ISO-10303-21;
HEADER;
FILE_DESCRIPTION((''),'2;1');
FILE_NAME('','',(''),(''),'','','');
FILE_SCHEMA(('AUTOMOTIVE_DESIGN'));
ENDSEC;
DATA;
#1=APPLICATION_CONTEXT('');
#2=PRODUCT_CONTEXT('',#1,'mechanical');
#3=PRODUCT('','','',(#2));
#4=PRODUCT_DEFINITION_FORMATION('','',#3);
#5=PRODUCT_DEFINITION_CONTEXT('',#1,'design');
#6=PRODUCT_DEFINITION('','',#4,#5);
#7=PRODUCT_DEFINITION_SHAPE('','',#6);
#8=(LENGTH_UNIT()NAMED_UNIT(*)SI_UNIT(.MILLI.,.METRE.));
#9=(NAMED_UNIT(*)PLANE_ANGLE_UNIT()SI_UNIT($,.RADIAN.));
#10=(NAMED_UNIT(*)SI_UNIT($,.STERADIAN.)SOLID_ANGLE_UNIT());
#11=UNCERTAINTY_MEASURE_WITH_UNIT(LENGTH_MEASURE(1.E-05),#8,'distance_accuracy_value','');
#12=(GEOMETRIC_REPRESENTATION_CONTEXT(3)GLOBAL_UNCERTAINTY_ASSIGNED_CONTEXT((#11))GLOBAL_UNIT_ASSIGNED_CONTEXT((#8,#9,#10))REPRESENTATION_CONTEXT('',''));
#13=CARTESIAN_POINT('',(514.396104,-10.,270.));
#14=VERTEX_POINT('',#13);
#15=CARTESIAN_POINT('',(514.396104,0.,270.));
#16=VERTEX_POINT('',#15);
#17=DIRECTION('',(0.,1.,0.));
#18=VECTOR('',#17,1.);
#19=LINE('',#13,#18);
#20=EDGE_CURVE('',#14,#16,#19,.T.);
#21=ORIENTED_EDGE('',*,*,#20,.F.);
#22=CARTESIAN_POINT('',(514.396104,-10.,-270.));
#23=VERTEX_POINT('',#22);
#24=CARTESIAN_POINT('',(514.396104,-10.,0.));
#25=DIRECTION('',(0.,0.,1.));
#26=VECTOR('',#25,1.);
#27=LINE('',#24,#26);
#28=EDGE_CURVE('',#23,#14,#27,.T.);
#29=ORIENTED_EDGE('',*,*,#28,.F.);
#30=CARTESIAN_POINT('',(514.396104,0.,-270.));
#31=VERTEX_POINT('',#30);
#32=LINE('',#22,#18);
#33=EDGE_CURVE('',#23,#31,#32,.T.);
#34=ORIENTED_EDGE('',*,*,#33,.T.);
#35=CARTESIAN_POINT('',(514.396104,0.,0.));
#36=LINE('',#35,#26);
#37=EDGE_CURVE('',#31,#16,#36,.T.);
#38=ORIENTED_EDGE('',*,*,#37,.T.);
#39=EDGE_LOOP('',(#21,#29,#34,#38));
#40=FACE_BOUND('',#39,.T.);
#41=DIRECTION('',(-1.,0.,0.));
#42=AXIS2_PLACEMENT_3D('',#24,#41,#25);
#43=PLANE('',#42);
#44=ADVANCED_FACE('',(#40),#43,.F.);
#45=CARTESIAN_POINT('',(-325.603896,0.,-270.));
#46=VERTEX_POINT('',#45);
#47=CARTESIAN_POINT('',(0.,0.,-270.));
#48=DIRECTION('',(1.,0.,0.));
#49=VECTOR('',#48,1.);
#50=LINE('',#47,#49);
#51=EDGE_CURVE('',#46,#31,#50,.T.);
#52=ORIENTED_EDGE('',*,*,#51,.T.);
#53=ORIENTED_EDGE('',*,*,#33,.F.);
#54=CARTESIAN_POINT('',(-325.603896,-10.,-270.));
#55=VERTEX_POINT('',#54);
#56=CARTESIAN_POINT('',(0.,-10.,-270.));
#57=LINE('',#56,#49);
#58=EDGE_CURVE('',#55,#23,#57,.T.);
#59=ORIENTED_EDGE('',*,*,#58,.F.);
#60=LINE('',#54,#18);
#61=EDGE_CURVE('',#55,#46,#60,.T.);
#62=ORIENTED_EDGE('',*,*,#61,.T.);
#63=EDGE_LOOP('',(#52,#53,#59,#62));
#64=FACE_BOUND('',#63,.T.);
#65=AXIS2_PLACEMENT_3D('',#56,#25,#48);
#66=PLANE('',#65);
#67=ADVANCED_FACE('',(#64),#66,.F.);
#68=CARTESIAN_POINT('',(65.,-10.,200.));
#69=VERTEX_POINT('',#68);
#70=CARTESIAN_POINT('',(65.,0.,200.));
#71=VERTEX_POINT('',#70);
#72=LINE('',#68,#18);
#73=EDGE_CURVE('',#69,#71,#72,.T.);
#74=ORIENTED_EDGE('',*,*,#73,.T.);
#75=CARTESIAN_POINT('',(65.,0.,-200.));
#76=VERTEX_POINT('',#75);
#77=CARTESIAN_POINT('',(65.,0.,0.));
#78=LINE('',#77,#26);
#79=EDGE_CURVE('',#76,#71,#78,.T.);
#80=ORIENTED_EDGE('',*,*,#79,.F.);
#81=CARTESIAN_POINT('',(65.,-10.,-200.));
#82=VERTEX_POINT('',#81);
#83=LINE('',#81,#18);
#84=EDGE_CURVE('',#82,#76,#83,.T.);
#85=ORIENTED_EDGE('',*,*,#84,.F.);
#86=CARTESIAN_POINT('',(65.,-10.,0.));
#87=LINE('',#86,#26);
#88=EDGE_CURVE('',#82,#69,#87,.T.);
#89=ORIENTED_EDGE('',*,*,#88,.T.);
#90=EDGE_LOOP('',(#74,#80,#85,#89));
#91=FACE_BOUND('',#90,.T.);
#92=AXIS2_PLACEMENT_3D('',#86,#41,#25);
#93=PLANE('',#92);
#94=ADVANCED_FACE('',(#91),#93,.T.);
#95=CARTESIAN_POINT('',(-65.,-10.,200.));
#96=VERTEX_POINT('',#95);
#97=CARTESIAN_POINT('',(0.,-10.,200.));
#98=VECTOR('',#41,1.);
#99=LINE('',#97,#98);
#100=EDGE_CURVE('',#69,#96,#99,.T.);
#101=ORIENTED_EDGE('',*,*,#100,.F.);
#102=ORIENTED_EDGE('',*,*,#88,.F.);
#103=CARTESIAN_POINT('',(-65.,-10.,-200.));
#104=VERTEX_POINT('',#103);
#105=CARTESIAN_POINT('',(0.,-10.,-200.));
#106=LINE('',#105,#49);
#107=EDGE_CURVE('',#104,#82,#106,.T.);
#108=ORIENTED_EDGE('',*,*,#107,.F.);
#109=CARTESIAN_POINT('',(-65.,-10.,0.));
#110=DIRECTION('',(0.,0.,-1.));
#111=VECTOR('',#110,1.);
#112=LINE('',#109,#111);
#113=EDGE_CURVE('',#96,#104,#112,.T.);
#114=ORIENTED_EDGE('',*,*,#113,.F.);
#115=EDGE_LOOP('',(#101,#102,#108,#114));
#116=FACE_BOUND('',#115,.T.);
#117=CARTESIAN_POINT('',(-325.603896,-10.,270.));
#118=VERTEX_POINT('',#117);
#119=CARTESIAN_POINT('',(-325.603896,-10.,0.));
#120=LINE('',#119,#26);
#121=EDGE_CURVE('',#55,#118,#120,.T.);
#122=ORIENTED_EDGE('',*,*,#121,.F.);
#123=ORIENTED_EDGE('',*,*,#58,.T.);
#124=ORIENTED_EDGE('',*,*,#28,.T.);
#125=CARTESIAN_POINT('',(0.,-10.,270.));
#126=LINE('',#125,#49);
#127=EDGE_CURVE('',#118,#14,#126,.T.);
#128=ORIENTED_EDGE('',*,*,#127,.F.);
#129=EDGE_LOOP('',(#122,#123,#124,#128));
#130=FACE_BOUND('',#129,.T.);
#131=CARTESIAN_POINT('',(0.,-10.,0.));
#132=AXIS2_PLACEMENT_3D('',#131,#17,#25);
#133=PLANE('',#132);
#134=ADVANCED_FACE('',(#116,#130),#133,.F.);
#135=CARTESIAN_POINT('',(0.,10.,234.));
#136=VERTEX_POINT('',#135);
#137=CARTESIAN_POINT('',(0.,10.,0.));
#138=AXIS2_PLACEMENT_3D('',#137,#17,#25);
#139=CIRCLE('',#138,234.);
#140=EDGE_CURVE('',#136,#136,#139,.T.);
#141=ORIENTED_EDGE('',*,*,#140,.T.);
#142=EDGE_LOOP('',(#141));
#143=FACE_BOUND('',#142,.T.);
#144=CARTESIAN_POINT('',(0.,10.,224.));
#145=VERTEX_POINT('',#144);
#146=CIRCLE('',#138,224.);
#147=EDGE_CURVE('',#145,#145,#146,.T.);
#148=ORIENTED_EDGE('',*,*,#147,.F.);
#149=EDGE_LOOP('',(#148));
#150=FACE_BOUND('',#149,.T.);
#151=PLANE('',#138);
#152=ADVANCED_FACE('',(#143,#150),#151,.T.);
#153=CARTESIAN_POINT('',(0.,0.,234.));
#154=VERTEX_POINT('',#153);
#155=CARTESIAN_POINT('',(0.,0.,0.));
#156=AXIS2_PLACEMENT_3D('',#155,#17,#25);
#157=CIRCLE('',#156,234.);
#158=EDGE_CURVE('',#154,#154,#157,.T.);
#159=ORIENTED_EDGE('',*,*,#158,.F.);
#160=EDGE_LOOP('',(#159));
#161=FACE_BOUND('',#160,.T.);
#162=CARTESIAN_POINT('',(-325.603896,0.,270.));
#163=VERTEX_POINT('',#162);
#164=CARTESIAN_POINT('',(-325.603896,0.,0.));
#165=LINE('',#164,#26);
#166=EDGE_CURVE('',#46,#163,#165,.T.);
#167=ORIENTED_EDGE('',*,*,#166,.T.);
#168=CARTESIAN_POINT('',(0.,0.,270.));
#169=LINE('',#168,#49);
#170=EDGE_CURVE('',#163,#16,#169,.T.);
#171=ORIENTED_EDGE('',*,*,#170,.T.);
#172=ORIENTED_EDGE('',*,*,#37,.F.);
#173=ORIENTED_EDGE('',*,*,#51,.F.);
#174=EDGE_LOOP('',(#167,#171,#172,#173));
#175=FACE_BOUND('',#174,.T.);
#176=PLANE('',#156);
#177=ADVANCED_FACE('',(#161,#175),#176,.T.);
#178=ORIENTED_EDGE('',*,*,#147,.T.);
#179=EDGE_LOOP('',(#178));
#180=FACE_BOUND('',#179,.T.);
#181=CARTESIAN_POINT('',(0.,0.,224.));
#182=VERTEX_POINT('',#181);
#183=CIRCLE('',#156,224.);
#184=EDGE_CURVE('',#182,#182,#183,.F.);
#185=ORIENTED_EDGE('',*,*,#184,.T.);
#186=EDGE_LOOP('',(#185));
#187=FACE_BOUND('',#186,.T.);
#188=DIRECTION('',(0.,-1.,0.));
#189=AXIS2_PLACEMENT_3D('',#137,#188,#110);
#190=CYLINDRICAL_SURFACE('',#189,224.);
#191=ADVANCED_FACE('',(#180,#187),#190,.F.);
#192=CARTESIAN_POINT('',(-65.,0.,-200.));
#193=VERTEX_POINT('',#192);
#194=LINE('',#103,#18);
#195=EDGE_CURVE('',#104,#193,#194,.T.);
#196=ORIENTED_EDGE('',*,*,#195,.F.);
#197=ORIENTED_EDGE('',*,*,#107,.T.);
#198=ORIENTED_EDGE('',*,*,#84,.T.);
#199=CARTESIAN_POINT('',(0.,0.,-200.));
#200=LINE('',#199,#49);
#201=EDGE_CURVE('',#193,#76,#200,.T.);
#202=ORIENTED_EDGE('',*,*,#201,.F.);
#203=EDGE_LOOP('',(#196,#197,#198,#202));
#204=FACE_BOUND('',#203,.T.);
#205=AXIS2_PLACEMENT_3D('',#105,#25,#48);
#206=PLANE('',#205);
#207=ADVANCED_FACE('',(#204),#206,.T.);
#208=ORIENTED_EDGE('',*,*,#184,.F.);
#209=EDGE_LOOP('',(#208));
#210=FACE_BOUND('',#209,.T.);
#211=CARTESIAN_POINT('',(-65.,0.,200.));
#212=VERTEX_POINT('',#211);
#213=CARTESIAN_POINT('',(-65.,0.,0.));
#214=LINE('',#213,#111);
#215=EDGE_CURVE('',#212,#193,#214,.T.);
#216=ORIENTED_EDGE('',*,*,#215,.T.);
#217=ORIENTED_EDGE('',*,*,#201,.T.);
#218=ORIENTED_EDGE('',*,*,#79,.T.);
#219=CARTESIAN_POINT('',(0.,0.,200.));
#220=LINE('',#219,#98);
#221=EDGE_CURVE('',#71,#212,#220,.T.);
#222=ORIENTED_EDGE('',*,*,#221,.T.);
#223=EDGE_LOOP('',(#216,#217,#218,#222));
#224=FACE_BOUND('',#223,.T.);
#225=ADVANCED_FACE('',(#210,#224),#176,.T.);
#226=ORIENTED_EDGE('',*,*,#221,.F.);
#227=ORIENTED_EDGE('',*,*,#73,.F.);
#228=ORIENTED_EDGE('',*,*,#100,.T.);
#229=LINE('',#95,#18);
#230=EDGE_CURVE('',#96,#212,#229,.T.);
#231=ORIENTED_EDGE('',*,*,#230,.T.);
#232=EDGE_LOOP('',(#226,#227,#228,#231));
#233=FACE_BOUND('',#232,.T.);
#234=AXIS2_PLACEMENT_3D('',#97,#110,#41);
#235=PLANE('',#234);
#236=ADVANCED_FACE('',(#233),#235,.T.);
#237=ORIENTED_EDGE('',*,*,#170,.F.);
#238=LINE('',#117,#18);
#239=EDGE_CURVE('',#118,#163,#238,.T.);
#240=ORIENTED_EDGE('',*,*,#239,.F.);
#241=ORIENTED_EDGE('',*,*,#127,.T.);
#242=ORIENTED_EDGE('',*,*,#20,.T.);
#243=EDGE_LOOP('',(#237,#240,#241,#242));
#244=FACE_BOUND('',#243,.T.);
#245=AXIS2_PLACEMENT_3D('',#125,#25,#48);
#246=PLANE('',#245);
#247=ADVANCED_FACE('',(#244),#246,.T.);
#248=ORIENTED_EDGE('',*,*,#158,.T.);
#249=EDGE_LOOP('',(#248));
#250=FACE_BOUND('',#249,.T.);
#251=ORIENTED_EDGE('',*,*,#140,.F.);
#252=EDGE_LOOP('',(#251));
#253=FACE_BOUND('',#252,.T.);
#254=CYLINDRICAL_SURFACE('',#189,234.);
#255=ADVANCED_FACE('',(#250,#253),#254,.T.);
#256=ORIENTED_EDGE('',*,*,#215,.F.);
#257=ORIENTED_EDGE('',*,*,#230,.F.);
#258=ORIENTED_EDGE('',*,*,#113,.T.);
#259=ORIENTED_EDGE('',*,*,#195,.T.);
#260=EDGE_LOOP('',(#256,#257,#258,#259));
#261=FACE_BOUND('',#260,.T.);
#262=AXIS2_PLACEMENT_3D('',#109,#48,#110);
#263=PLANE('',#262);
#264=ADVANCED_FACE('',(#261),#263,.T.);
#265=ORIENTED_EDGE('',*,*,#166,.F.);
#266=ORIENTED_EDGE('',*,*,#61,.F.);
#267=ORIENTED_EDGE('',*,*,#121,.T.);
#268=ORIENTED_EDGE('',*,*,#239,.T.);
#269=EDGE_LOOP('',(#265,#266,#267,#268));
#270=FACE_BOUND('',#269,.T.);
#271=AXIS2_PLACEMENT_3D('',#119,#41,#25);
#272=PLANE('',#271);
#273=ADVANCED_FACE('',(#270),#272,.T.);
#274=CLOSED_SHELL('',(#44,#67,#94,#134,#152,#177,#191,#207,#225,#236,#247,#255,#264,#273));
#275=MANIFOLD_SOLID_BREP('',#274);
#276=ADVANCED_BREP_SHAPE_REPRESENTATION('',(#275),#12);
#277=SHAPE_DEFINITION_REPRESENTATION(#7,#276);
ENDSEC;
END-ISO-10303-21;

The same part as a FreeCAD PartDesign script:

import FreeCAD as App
import Part
import Sketcher

doc = App.newDocument("Part")
body = doc.addObject("PartDesign::Body", "Body")

sketch1 = body.newObject("Sketcher::SketchObject", "Sketch")
sketch1.AttachmentSupport = (doc.getObject("XZ_Plane"), [""])
sketch1.MapMode = "FlatFace"
sketch1.addGeometry([
    Part.LineSegment(App.Vector(514.396104, -270, 0), App.Vector(-325.603896, -270, 0)),
    Part.LineSegment(App.Vector(-325.603896, -270, 0), App.Vector(-325.603896, 270, 0)),
    Part.LineSegment(App.Vector(-325.603896, 270, 0), App.Vector(514.396104, 270, 0)),
    Part.LineSegment(App.Vector(514.396104, 270, 0), App.Vector(514.396104, -270, 0)),
    Part.LineSegment(App.Vector(65, 200, 0), App.Vector(-65, 200, 0)),
    Part.LineSegment(App.Vector(-65, 200, 0), App.Vector(-65, -200, 0)),
    Part.LineSegment(App.Vector(-65, -200, 0), App.Vector(65, -200, 0)),
    Part.LineSegment(App.Vector(65, -200, 0), App.Vector(65, 200, 0)),
], False)
sketch1.addConstraint([
    Sketcher.Constraint("Coincident", 0, 2, 1, 1),
    Sketcher.Constraint("Coincident", 1, 2, 2, 1),
    Sketcher.Constraint("Coincident", 2, 2, 3, 1),
    Sketcher.Constraint("Coincident", 3, 2, 0, 1),
    Sketcher.Constraint("Coincident", 4, 2, 5, 1),
    Sketcher.Constraint("Coincident", 5, 2, 6, 1),
    Sketcher.Constraint("Coincident", 6, 2, 7, 1),
    Sketcher.Constraint("Coincident", 7, 2, 4, 1),
    Sketcher.Constraint("Horizontal", 0),
    Sketcher.Constraint("Vertical", 1),
    Sketcher.Constraint("Horizontal", 2),
    Sketcher.Constraint("Vertical", 3),
    Sketcher.Constraint("Horizontal", 4),
    Sketcher.Constraint("Vertical", 5),
    Sketcher.Constraint("Horizontal", 6),
    Sketcher.Constraint("Vertical", 7),
    Sketcher.Constraint("Symmetric", 4, 2, 6, 2, -1, 1),
    Sketcher.Constraint("DistanceX", 0, 2, 0, 1, 840.0),
    Sketcher.Constraint("DistanceX", 4, 2, 4, 1, 130.0),
    Sketcher.Constraint("DistanceY", 1, 1, 1, 2, 540.0),
    Sketcher.Constraint("DistanceY", 5, 2, 5, 1, 400.0),
    Sketcher.Constraint("DistanceY", 0, 2, -1, 1, 270.0),
    Sketcher.Constraint("DistanceX", 0, 2, -1, 1, 325.603896),
])
pad1 = body.newObject("PartDesign::Pad", "Pad")
pad1.Profile = sketch1
pad1.Length = 10

sketch2 = body.newObject("Sketcher::SketchObject", "Sketch001")
sketch2.AttachmentSupport = (doc.getObject("XZ_Plane"), [""])
sketch2.MapMode = "FlatFace"
sketch2.addGeometry([
    Part.Circle(App.Vector(0, 0, 0), App.Vector(0, 0, 1), 234),
    Part.Circle(App.Vector(0, 0, 0), App.Vector(0, 0, 1), 224),
], False)
sketch2.addConstraint([
    Sketcher.Constraint("Coincident", 0, 3, -1, 1),
    Sketcher.Constraint("Coincident", 1, 3, -1, 1),
    Sketcher.Constraint("Diameter", 0, 468.0),
    Sketcher.Constraint("Diameter", 1, 448.0),
])
pad2 = body.newObject("PartDesign::Pad", "Pad001")
pad2.Profile = sketch2
pad2.Length = 10
pad2.Reversed = True

doc.recompute()
